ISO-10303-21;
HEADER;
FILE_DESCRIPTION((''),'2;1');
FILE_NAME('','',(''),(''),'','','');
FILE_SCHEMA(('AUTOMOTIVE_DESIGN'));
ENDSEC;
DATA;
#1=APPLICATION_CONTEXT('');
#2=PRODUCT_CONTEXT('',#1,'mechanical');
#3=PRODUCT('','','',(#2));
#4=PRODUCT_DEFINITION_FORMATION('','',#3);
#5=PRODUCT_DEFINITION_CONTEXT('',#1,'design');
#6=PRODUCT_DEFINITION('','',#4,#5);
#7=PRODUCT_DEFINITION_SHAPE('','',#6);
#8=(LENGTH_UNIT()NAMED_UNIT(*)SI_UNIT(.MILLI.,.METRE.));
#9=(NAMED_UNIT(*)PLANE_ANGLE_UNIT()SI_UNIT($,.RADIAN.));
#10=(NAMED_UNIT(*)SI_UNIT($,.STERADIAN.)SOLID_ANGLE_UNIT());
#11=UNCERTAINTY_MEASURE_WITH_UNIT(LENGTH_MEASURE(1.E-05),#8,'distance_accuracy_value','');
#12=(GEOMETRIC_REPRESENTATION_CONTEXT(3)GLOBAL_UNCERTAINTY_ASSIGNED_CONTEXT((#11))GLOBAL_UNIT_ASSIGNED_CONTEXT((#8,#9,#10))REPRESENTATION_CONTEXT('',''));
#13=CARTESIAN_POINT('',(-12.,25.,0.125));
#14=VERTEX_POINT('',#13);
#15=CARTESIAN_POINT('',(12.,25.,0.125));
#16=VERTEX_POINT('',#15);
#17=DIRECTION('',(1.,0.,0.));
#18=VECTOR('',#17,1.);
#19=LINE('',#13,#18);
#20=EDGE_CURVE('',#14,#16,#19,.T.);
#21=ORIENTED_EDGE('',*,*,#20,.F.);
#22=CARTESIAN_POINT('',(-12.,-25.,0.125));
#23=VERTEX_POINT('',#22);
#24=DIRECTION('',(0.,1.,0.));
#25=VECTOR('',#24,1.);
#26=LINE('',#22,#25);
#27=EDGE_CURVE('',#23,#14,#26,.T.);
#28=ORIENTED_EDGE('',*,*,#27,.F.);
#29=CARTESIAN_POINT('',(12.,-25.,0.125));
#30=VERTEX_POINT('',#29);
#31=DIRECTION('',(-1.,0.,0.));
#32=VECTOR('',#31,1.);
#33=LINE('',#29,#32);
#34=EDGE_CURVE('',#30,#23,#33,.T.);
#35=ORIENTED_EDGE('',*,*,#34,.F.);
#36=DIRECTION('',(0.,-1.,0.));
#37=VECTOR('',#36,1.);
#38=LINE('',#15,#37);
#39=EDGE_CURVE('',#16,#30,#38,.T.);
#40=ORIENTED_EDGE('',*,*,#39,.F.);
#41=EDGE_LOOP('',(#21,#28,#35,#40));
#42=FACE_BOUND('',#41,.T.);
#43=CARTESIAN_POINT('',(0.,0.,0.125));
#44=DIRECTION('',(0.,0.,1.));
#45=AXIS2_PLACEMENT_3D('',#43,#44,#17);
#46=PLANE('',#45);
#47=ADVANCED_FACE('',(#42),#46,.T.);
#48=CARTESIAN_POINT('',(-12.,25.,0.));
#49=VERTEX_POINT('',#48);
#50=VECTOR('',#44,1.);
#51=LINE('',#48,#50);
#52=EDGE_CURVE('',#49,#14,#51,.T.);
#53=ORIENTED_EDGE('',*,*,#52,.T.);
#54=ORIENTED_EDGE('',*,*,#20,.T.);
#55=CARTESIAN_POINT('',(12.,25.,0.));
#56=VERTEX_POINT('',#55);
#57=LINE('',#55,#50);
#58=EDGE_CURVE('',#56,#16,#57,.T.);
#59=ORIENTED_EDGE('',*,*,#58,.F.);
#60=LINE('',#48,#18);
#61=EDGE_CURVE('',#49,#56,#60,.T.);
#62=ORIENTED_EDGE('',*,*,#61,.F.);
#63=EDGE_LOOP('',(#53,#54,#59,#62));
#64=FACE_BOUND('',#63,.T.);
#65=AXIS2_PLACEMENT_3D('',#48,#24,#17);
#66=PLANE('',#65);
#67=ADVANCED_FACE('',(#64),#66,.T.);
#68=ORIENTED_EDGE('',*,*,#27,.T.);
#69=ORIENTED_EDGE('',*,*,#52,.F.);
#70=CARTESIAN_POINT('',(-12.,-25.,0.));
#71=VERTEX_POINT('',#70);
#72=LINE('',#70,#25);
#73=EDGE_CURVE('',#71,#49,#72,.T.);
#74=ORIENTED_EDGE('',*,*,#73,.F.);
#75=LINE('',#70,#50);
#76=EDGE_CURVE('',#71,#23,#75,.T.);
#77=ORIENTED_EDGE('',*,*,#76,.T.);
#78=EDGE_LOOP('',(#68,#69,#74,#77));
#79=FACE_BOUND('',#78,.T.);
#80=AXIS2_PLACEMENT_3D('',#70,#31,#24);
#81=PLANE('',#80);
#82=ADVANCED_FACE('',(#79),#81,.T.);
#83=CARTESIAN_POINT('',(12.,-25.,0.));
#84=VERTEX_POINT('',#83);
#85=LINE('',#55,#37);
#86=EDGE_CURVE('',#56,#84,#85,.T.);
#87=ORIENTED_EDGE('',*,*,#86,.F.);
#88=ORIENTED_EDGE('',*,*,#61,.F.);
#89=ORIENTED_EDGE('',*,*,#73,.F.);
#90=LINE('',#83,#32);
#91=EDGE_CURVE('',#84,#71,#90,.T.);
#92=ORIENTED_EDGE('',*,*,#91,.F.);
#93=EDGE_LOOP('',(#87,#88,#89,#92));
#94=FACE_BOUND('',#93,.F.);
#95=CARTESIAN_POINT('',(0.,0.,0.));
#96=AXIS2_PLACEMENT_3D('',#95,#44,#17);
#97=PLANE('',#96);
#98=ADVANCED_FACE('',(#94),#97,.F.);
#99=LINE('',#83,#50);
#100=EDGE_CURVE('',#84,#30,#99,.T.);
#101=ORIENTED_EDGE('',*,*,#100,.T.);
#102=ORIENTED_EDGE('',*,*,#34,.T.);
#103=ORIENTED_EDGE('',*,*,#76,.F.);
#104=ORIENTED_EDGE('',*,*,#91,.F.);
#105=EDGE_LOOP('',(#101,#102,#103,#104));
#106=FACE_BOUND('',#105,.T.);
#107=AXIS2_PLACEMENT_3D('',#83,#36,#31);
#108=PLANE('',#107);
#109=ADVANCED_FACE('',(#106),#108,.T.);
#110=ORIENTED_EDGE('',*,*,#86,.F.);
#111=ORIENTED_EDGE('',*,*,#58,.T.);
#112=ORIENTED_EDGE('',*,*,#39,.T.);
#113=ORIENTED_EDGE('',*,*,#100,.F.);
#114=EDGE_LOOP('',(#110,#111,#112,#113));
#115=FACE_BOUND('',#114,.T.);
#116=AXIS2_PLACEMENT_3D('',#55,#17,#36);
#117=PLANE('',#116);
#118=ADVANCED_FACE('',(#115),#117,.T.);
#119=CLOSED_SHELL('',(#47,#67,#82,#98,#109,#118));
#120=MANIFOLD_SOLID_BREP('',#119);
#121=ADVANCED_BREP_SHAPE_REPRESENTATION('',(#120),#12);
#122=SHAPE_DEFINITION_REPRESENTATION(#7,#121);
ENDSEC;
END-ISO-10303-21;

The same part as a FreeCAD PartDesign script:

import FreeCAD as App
import Part
import Sketcher

V = App.Vector
Q = App.Units.Quantity

doc = App.newDocument("Part")
params = doc.addObject("Spreadsheet::Sheet", "Params")
for row, (alias, value) in enumerate([
    ("sketch1_width", "24 mm"),
    ("sketch1_height", "50 mm"),
    ("pad1_length", "0.125 mm"),
], start=1):
    params.set(f"A{row}", alias)
    params.set(f"B{row}", "=" + value)
    params.setAlias(f"B{row}", alias)

body = doc.addObject("PartDesign::Body", "Body")

# Sketch on XY plane
sketch1 = body.newObject("Sketcher::SketchObject", "Sketch")
sketch1.AttachmentSupport = (doc.getObject("XY_Plane"), [""])
sketch1.MapMode = "FlatFace"
sketch1.addGeometry([
    Part.LineSegment(V(-12, -25, 0), V(12, -25, 0)),
    Part.LineSegment(V(12, -25, 0), V(12, 25, 0)),
    Part.LineSegment(V(12, 25, 0), V(-12, 25, 0)),
    Part.LineSegment(V(-12, 25, 0), V(-12, -25, 0)),
], False)
sketch1.addConstraint([
    Sketcher.Constraint("Coincident", 0, 2, 1, 1),
    Sketcher.Constraint("Coincident", 1, 2, 2, 1),
    Sketcher.Constraint("Coincident", 2, 2, 3, 1),
    Sketcher.Constraint("Coincident", 3, 2, 0, 1),
    Sketcher.Constraint("Horizontal", 0),
    Sketcher.Constraint("Vertical", 1),
    Sketcher.Constraint("Horizontal", 2),
    Sketcher.Constraint("Vertical", 3),
    Sketcher.Constraint("Symmetric", 0, 2, 2, 2, -1, 1),
    Sketcher.Constraint("DistanceX", 0, 1, 0, 2, Q("24 mm")),
    Sketcher.Constraint("DistanceY", 1, 1, 1, 2, Q("50 mm")),
])
sketch1.setExpression("Constraints[9]", "Params.sketch1_width")
sketch1.setExpression("Constraints[10]", "Params.sketch1_height")
pad1 = body.newObject("PartDesign::Pad", "Pad")
pad1.Profile = sketch1
pad1.setExpression("Length", "Params.pad1_length")

doc.recompute()
